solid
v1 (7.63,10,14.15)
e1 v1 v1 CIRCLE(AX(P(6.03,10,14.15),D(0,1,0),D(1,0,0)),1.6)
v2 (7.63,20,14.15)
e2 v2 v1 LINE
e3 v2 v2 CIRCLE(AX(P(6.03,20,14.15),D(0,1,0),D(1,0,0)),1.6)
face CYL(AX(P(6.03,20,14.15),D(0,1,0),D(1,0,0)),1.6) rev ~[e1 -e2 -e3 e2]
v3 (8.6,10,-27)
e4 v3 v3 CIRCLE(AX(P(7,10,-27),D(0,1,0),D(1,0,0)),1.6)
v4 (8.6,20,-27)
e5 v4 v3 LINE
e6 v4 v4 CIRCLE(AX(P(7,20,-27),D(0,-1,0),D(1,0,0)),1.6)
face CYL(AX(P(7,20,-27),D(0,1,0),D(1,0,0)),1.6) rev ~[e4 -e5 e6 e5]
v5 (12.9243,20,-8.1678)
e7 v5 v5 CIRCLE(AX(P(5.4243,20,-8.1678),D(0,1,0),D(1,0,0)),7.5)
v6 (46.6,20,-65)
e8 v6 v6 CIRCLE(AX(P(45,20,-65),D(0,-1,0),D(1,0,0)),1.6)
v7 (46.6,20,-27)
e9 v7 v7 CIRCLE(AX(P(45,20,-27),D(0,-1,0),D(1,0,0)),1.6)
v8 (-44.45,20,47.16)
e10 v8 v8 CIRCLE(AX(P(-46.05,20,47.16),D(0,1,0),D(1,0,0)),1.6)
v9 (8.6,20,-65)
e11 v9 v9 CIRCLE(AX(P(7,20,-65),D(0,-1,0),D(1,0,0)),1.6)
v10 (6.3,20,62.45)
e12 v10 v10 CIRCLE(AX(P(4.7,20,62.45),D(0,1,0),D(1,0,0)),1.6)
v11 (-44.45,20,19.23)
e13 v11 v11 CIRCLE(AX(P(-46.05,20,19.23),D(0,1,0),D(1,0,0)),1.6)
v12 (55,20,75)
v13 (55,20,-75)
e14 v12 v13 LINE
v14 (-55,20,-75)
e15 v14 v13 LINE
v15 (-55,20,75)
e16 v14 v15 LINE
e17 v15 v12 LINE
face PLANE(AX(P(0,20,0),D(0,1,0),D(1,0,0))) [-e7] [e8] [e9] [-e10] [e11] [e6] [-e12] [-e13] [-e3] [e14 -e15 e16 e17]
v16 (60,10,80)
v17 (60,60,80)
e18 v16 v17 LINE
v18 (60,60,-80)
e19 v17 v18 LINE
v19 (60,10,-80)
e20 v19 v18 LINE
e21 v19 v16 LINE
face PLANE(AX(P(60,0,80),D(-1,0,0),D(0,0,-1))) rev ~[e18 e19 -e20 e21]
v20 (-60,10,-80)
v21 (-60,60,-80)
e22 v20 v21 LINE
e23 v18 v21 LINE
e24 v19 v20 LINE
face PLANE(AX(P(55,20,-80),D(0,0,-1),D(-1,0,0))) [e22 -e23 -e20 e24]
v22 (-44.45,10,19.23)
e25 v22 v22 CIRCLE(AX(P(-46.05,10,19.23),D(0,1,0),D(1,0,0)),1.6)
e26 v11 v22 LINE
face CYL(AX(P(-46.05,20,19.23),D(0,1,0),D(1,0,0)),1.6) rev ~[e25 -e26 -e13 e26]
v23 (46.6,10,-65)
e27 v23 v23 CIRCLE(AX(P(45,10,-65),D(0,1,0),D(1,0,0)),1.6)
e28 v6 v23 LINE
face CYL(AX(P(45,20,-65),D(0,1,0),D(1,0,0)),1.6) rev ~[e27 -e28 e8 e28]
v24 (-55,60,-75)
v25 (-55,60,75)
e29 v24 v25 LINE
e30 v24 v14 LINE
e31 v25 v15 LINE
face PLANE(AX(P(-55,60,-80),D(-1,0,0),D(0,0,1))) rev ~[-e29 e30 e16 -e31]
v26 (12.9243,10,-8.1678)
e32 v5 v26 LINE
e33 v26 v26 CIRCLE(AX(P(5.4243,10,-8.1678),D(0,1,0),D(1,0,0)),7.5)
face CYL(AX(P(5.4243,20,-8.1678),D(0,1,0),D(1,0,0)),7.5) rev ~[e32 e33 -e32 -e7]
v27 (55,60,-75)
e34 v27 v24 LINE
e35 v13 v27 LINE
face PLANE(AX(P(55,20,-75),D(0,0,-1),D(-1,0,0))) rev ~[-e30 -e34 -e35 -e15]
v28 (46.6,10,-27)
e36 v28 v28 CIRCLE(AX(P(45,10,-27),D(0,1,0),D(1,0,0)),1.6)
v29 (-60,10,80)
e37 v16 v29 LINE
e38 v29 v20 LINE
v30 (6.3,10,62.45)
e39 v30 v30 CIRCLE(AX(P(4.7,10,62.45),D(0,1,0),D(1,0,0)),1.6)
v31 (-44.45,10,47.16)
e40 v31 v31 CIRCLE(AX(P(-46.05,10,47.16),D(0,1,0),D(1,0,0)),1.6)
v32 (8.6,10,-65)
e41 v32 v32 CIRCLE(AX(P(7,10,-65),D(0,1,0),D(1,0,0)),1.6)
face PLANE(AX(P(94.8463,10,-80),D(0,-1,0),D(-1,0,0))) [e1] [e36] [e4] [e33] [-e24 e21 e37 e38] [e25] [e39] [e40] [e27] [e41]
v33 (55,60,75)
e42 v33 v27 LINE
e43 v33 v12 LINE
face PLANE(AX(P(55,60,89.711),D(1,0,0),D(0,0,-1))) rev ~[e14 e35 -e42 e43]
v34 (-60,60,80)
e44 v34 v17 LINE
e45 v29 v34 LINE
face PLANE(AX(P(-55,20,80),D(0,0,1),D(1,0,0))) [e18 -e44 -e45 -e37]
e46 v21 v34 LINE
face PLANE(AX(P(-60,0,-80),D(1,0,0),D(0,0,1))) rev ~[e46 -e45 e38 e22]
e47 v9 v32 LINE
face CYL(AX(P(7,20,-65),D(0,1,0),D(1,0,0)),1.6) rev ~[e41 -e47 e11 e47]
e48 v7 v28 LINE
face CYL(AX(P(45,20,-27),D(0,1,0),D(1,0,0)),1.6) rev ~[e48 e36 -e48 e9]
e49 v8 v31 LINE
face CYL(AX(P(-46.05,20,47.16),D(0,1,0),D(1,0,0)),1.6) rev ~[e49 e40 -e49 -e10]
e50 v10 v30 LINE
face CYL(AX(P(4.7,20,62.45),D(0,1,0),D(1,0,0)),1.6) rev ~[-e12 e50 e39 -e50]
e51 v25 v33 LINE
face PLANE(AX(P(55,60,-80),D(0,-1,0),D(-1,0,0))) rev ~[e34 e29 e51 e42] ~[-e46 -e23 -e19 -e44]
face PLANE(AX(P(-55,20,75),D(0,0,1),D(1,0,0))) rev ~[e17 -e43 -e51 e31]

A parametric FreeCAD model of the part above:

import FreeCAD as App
import Part
import Sketcher
from FreeCAD import Vector

doc = App.newDocument("Part")
body = doc.addObject("PartDesign::Body", "Body")

# Sketch on XZ plane
sketch1 = body.newObject("Sketcher::SketchObject", "Sketch")
sketch1.AttachmentSupport = (doc.getObject("XZ_Plane"), [""])
sketch1.MapMode = "FlatFace"
sketch1.addGeometry([
    Part.LineSegment(Vector(-60, -80, 0), Vector(-60, 80, 0)),
    Part.LineSegment(Vector(-60, 80, 0), Vector(60, 80, 0)),
    Part.LineSegment(Vector(60, 80, 0), Vector(60, -80, 0)),
    Part.LineSegment(Vector(60, -80, 0), Vector(-60, -80, 0)),
], False)
sketch1.addConstraint([
    Sketcher.Constraint("Coincident", 0, 2, 1, 1),
    Sketcher.Constraint("Coincident", 1, 2, 2, 1),
    Sketcher.Constraint("Coincident", 2, 2, 3, 1),
    Sketcher.Constraint("Coincident", 3, 2, 0, 1),
    Sketcher.Constraint("Vertical", 0),
    Sketcher.Constraint("Horizontal", 1),
    Sketcher.Constraint("Vertical", 2),
    Sketcher.Constraint("Horizontal", 3),
    Sketcher.Constraint("Symmetric", 0, 2, 2, 2, -1, 1),
    Sketcher.Constraint("DistanceX", 1, 1, 1, 2, 120.0),
    Sketcher.Constraint("DistanceY", 0, 1, 0, 2, 160.0),
])
pad1 = body.newObject("PartDesign::Pad", "Pad")
pad1.Profile = sketch1
pad1.Length = 60
pad1.Reversed = True

# Sketch on XZ plane
sketch2 = body.newObject("Sketcher::SketchObject", "Sketch001")
sketch2.AttachmentSupport = (doc.getObject("XZ_Plane"), [""])
sketch2.MapMode = "FlatFace"
sketch2.AttachmentOffset = App.Placement(Vector(0, 0, -60), App.Rotation())
sketch2.addGeometry([
    Part.LineSegment(Vector(55, 90, 0), Vector(55, -80, 0)),
    Part.LineSegment(Vector(55, -80, 0), Vector(-55, -80, 0)),
    Part.LineSegment(Vector(-55, -80, 0), Vector(-55, 90, 0)),
    Part.LineSegment(Vector(-55, 90, 0), Vector(55, 90, 0)),
], False)
sketch2.addConstraint([
    Sketcher.Constraint("Coincident", 0, 2, 1, 1),
    Sketcher.Constraint("Coincident", 1, 2, 2, 1),
    Sketcher.Constraint("Coincident", 2, 2, 3, 1),
    Sketcher.Constraint("Coincident", 3, 2, 0, 1),
    Sketcher.Constraint("Vertical", 0),
    Sketcher.Constraint("Horizontal", 1),
    Sketcher.Constraint("Vertical", 2),
    Sketcher.Constraint("Horizontal", 3),
    Sketcher.Constraint("DistanceX", 1, 2, 1, 1, 110.0),
    Sketcher.Constraint("DistanceX", -1, 1, 0, 2, 55.0),
    Sketcher.Constraint("DistanceY", 0, 2, -1, 1, 80.0),
    Sketcher.Constraint("DistanceY", 0, 2, 0, 1, 169.711),
])
pocket1 = body.newObject("PartDesign::Pocket", "Pocket")
pocket1.Profile = sketch2
pocket1.Length = 40
pocket1.Reversed = True

# Sketch on XY plane
sketch3 = body.newObject("Sketcher::SketchObject", "Sketch002")
sketch3.AttachmentSupport = (doc.getObject("XY_Plane"), [""])
sketch3.MapMode = "FlatFace"
sketch3.AttachmentOffset = App.Placement(Vector(0, 0, -80), App.Rotation())
sketch3.addGeometry([
    Part.LineSegment(Vector(-96, 10, 0), Vector(95, 10, 0)),
    Part.LineSegment(Vector(95, 10, 0), Vector(95, -37, 0)),
    Part.LineSegment(Vector(95, -37, 0), Vector(-96, -37, 0)),
    Part.LineSegment(Vector(-96, -37, 0), Vector(-96, 10, 0)),
], False)
sketch3.addConstraint([
    Sketcher.Constraint("Coincident", 0, 2, 1, 1),
    Sketcher.Constraint("Coincident", 1, 2, 2, 1),
    Sketcher.Constraint("Coincident", 2, 2, 3, 1),
    Sketcher.Constraint("Coincident", 3, 2, 0, 1),
    Sketcher.Constraint("Horizontal", 0),
    Sketcher.Constraint("Vertical", 1),
    Sketcher.Constraint("Horizontal", 2),
    Sketcher.Constraint("Vertical", 3),
    Sketcher.Constraint("DistanceY", -1, 1, 0, 2, 10.0),
    Sketcher.Constraint("DistanceX", 0, 1, 0, 2, 191.1097),
    Sketcher.Constraint("DistanceY", 1, 2, 1, 1, 46.9465),
    Sketcher.Constraint("DistanceX", -1, 1, 0, 2, 94.8463),
])
pocket2 = body.newObject("PartDesign::Pocket", "Pocket001")
pocket2.Profile = sketch3
pocket2.Type = "ThroughAll"
pocket2.Reversed = True

# Sketch on XY plane
sketch4 = body.newObject("Sketcher::SketchObject", "Sketch003")
sketch4.AttachmentSupport = (doc.getObject("XY_Plane"), [""])
sketch4.MapMode = "FlatFace"
sketch4.AttachmentOffset = App.Placement(Vector(0, 0, 80), App.Rotation())
sketch4.addGeometry([
    Part.LineSegment(Vector(55, 60, 0), Vector(-55, 60, 0)),
    Part.LineSegment(Vector(-55, 60, 0), Vector(-55, 20, 0)),
    Part.LineSegment(Vector(-55, 20, 0), Vector(55, 20, 0)),
    Part.LineSegment(Vector(55, 20, 0), Vector(55, 60, 0)),
], False)
sketch4.addConstraint([
    Sketcher.Constraint("Coincident", 0, 2, 1, 1),
    Sketcher.Constraint("Coincident", 1, 2, 2, 1),
    Sketcher.Constraint("Coincident", 2, 2, 3, 1),
    Sketcher.Constraint("Coincident", 3, 2, 0, 1),
    Sketcher.Constraint("Horizontal", 0),
    Sketcher.Constraint("Vertical", 1),
    Sketcher.Constraint("Horizontal", 2),
    Sketcher.Constraint("Vertical", 3),
    Sketcher.Constraint("DistanceX", 0, 2, 0, 1, 110.0),
    Sketcher.Constraint("DistanceY", 1, 2, 1, 1, 40.0),
    Sketcher.Constraint("DistanceX", 0, 2, -1, 1, 55.0),
    Sketcher.Constraint("DistanceY", -1, 1, 0, 2, 60.0),
])
pad2 = body.newObject("PartDesign::Pad", "Pad001")
pad2.Profile = sketch4
pad2.Length = 5
pad2.Reversed = True

# Sketch on XY plane
sketch5 = body.newObject("Sketcher::SketchObject", "Sketch004")
sketch5.AttachmentSupport = (doc.getObject("XY_Plane"), [""])
sketch5.MapMode = "FlatFace"
sketch5.AttachmentOffset = App.Placement(Vector(0, 0, -80), App.Rotation())
sketch5.addGeometry([
    Part.LineSegment(Vector(55, 60, 0), Vector(55, 20, 0)),
    Part.LineSegment(Vector(55, 20, 0), Vector(-55, 20, 0)),
    Part.LineSegment(Vector(-55, 20, 0), Vector(-55, 60, 0)),
    Part.LineSegment(Vector(-55, 60, 0), Vector(55, 60, 0)),
], False)
sketch5.addConstraint([
    Sketcher.Constraint("Coincident", 0, 2, 1, 1),
    Sketcher.Constraint("Coincident", 1, 2, 2, 1),
    Sketcher.Constraint("Coincident", 2, 2, 3, 1),
    Sketcher.Constraint("Coincident", 3, 2, 0, 1),
    Sketcher.Constraint("Vertical", 0),
    Sketcher.Constraint("Horizontal", 1),
    Sketcher.Constraint("Vertical", 2),
    Sketcher.Constraint("Horizontal", 3),
    Sketcher.Constraint("DistanceX", 1, 2, 1, 1, 110.0),
    Sketcher.Constraint("DistanceY", 0, 2, 0, 1, 40.0),
    Sketcher.Constraint("DistanceX", -1, 1, 0, 2, 55.0),
    Sketcher.Constraint("DistanceY", -1, 1, 0, 2, 20.0),
])
pad3 = body.newObject("PartDesign::Pad", "Pad002")
pad3.Profile = sketch5
pad3.Length = 5

# Sketch on XZ plane
sketch6 = body.newObject("Sketcher::SketchObject", "Sketch005")
sketch6.AttachmentSupport = (doc.getObject("XZ_Plane"), [""])
sketch6.MapMode = "FlatFace"
sketch6.AttachmentOffset = App.Placement(Vector(0, 0, -20), App.Rotation())
sketch6.addGeometry([
    Part.Circle(Vector(7, -27, 0), Vector(0, 0, 1), 1.6),
    Part.Circle(Vector(45, -27, 0), Vector(0, 0, 1), 1.6),
    Part.Circle(Vector(7, -65, 0), Vector(0, 0, 1), 1.6),
    Part.Circle(Vector(45, -65, 0), Vector(0, 0, 1), 1.6),
], False)
sketch6.addConstraint([
    Sketcher.Constraint("Equal", 0, 1),
    Sketcher.Constraint("Equal", 1, 2),
    Sketcher.Constraint("Equal", 2, 3),
    Sketcher.Constraint("Horizontal", 0, 3, 1, 3),
    Sketcher.Constraint("Horizontal", 2, 3, 3, 3),
    Sketcher.Constraint("Vertical", 0, 3, 2, 3),
    Sketcher.Constraint("Vertical", 1, 3, 3, 3),
    Sketcher.Constraint("Diameter", 0, 3.2),
    Sketcher.Constraint("DistanceX", 0, 3, 1, 3, 38.0),
    Sketcher.Constraint("DistanceY", 2, 3, 0, 3, 38.0),
    Sketcher.Constraint("DistanceX", -1, 1, 0, 3, 7.0),
    Sketcher.Constraint("DistanceY", 0, 3, -1, 1, 27.0),
])
pocket3 = body.newObject("PartDesign::Pocket", "Pocket002")
pocket3.Profile = sketch6
pocket3.Type = "ThroughAll"
pocket3.Reversed = True

# Sketch on XZ plane
sketch7 = body.newObject("Sketcher::SketchObject", "Sketch006")
sketch7.AttachmentSupport = (doc.getObject("XZ_Plane"), [""])
sketch7.MapMode = "FlatFace"
sketch7.AttachmentOffset = App.Placement(Vector(0, 0, -20), App.Rotation())
sketch7.addGeometry(Part.Circle(Vector(5, -8, 0), Vector(0, 0, 1), 8), False)
sketch7.addConstraint([
    Sketcher.Constraint("Diameter", 0, 15.0),
    Sketcher.Constraint("DistanceX", -1, 1, 0, 3, 5.4243),
    Sketcher.Constraint("DistanceY", 0, 3, -1, 1, 8.1678),
])
pocket4 = body.newObject("PartDesign::Pocket", "Pocket003")
pocket4.Profile = sketch7
pocket4.Type = "ThroughAll"
pocket4.Reversed = True

# Sketch on XZ plane
sketch8 = body.newObject("Sketcher::SketchObject", "Sketch007")
sketch8.AttachmentSupport = (doc.getObject("XZ_Plane"), [""])
sketch8.MapMode = "FlatFace"
sketch8.AttachmentOffset = App.Placement(Vector(0, 0, -20), App.Rotation())
sketch8.addGeometry([
    Part.Circle(Vector(4.7, 62.5, 0), Vector(0, 0, 1), 1.6),
    Part.Circle(Vector(6, 14.2, 0), Vector(0, 0, 1), 1.6),
    Part.Circle(Vector(-46, 47.2, 0), Vector(0, 0, 1), 1.6),
    Part.Circle(Vector(-46, 19.2, 0), Vector(0, 0, 1), 1.6),
], False)
sketch8.addConstraint([
    Sketcher.Constraint("Equal", 0, 1),
    Sketcher.Constraint("Equal", 1, 2),
    Sketcher.Constraint("Equal", 2, 3),
    Sketcher.Constraint("Vertical", 2, 3, 3, 3),
    Sketcher.Constraint("Diameter", 0, 3.2),
    Sketcher.Constraint("DistanceX", -1, 1, 0, 3, 4.7),
    Sketcher.Constraint("DistanceY", 1, 3, 0, 3, 48.3),
    Sketcher.Constraint("DistanceY", -1, 1, 0, 3, 62.45),
    Sketcher.Constraint("DistanceX", -1, 1, 1, 3, 6.03),
    Sketcher.Constraint("DistanceX", 2, 3, -1, 1, 46.05),
    Sketcher.Constraint("DistanceY", -1, 1, 2, 3, 47.16),
    Sketcher.Constraint("DistanceY", -1, 1, 3, 3, 19.23),
])
pocket5 = body.newObject("PartDesign::Pocket", "Pocket004")
pocket5.Profile = sketch8
pocket5.Type = "ThroughAll"
pocket5.Reversed = True

doc.recompute()
